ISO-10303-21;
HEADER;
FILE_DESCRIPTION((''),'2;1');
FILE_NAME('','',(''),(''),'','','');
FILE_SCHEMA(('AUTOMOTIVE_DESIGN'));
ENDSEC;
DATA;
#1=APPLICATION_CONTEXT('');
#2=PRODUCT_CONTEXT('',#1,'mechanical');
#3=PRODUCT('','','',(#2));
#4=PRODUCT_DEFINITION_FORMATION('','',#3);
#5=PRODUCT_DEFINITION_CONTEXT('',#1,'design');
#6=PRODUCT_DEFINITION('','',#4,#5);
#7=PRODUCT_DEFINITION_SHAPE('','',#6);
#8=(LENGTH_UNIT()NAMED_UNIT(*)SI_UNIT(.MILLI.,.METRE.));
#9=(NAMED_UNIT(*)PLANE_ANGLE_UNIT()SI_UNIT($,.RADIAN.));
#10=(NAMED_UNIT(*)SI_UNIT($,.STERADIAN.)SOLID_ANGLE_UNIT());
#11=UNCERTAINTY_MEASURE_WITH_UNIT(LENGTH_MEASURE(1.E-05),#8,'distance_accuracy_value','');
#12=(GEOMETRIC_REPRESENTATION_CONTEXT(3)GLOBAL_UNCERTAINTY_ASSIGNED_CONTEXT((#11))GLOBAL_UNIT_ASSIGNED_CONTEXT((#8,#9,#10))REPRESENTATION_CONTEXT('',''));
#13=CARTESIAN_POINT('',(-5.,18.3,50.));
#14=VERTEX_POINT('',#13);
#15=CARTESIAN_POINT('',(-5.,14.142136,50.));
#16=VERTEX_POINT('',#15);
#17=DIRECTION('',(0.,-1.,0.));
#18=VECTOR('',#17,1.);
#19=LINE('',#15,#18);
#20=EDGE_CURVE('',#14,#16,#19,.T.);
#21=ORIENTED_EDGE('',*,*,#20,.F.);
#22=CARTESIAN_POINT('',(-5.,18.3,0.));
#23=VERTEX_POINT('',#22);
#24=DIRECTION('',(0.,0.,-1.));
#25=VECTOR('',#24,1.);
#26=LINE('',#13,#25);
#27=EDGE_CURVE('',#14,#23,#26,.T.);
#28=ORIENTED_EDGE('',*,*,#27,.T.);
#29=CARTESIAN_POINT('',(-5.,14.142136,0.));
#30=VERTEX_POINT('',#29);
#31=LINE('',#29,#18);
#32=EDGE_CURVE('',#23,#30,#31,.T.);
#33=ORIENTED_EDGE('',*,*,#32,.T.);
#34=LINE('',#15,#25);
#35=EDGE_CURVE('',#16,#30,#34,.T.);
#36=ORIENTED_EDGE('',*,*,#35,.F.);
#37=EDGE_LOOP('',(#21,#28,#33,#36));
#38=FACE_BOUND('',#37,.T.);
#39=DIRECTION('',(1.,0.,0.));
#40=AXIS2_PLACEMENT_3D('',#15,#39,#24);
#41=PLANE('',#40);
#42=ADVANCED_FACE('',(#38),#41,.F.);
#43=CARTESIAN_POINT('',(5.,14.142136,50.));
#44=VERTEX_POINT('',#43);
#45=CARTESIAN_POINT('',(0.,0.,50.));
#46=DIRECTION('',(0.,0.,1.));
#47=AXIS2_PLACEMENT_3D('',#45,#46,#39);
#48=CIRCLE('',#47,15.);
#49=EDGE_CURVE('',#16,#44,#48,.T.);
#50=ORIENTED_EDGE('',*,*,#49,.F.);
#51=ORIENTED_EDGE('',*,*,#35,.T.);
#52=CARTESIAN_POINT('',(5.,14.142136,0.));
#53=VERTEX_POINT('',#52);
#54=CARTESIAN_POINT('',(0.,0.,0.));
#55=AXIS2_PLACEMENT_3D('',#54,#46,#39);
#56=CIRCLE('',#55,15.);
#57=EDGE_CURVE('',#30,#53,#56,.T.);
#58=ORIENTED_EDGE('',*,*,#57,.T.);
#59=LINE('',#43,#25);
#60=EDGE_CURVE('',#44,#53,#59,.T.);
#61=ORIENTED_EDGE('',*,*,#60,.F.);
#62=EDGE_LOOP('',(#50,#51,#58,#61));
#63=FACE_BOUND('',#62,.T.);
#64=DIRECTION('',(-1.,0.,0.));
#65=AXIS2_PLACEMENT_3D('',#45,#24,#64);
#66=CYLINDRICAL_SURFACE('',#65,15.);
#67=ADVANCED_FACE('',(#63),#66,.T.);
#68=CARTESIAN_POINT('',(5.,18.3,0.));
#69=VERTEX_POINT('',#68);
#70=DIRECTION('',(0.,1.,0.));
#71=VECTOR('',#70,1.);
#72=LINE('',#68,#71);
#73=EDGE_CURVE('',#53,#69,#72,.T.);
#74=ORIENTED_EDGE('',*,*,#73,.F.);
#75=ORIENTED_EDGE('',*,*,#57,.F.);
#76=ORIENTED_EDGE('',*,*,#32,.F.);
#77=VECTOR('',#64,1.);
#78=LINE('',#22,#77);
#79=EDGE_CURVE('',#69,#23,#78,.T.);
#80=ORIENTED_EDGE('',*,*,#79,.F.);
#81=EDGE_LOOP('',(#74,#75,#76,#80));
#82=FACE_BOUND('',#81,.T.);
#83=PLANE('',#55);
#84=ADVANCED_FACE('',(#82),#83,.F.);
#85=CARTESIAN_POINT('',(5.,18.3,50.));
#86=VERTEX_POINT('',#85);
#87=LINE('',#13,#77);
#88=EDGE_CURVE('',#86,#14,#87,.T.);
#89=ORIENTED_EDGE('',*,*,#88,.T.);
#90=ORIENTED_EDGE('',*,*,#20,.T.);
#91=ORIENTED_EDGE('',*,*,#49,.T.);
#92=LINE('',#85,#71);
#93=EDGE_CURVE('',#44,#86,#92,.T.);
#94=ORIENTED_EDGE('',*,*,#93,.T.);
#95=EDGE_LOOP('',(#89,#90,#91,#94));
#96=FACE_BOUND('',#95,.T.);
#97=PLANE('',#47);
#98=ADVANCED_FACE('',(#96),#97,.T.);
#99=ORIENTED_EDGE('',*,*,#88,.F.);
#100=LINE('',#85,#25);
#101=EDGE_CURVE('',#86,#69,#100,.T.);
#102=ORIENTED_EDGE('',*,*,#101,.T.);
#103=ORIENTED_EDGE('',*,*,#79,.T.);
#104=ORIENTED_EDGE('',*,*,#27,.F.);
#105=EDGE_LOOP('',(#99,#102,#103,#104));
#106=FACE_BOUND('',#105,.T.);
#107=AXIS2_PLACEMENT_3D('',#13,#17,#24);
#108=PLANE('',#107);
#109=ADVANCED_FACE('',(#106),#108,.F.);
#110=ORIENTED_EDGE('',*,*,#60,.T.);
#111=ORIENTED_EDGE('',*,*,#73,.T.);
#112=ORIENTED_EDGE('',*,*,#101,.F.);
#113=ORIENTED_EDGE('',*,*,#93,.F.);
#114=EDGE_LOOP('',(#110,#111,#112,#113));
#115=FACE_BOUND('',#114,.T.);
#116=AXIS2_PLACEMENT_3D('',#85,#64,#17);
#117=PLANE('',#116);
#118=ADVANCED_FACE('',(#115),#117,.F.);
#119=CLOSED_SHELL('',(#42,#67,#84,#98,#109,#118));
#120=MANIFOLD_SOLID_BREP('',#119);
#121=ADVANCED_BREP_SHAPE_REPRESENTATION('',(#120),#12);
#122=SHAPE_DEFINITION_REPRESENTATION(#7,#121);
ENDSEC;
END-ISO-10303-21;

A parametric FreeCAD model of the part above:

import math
import FreeCAD as App
import Part
import Sketcher
from FreeCAD import Vector
Q = App.Units.Quantity

doc = App.newDocument("Part")
params = doc.addObject("Spreadsheet::Sheet", "Params")
for row, (alias, value) in enumerate([
    ("sketch1_radius", "15 mm"),
    ("sketch1_width", "10 mm"),
    ("pad1_length", "50 mm"),
], start=1):
    params.set(f"A{row}", alias)
    params.set(f"B{row}", "=" + value)
    params.setAlias(f"B{row}", alias)

body = doc.addObject("PartDesign::Body", "Body")

# Sketch on XY plane
sketch1 = doc.addObject("Sketcher::SketchObject", "Sketch")
body.addObject(sketch1)
sketch1.AttachmentSupport = (doc.XY_Plane, [""])
sketch1.MapMode = "FlatFace"
sketch1.addGeometry([
    Part.LineSegment(Vector(-5, 18.3, 0), Vector(-5, 14.142136, 0)),
    Part.ArcOfCircle(Part.Circle(Vector(0, 0, 0), Vector(0, 0, 1), 15), math.radians(109.471221), math.radians(430.528779)),
    Part.LineSegment(Vector(5, 14.142136, 0), Vector(5, 18.3, 0)),
    Part.LineSegment(Vector(5, 18.3, 0), Vector(-5, 18.3, 0)),
], False)
sketch1.addConstraint([
    Sketcher.Constraint("Coincident", 0, 2, 1, 1),
    Sketcher.Constraint("Coincident", 1, 2, 2, 1),
    Sketcher.Constraint("Coincident", 2, 2, 3, 1),
    Sketcher.Constraint("Coincident", 3, 2, 0, 1),
    Sketcher.Constraint("Vertical", 0),
    Sketcher.Constraint("Vertical", 2),
    Sketcher.Constraint("Horizontal", 3),
    Sketcher.Constraint("Coincident", 1, 3, -1, 1),
    Sketcher.Constraint("Horizontal", 0, 2, 1, 2),
    Sketcher.Constraint("Radius", 1, Q("15 mm")),
    Sketcher.Constraint("DistanceX", 3, 2, 3, 1, Q("10 mm")),
    Sketcher.Constraint("DistanceY", -1, 1, 2, 2, Q("18.3 mm")),
])
sketch1.setExpression("Constraints[9]", "Params.sketch1_radius")
sketch1.setExpression("Constraints[10]", "Params.sketch1_width")
pad1 = doc.addObject("PartDesign::Pad", "Pad")
body.addObject(pad1)
pad1.Profile = sketch1
pad1.setExpression("Length", "Params.pad1_length")

doc.recompute()
